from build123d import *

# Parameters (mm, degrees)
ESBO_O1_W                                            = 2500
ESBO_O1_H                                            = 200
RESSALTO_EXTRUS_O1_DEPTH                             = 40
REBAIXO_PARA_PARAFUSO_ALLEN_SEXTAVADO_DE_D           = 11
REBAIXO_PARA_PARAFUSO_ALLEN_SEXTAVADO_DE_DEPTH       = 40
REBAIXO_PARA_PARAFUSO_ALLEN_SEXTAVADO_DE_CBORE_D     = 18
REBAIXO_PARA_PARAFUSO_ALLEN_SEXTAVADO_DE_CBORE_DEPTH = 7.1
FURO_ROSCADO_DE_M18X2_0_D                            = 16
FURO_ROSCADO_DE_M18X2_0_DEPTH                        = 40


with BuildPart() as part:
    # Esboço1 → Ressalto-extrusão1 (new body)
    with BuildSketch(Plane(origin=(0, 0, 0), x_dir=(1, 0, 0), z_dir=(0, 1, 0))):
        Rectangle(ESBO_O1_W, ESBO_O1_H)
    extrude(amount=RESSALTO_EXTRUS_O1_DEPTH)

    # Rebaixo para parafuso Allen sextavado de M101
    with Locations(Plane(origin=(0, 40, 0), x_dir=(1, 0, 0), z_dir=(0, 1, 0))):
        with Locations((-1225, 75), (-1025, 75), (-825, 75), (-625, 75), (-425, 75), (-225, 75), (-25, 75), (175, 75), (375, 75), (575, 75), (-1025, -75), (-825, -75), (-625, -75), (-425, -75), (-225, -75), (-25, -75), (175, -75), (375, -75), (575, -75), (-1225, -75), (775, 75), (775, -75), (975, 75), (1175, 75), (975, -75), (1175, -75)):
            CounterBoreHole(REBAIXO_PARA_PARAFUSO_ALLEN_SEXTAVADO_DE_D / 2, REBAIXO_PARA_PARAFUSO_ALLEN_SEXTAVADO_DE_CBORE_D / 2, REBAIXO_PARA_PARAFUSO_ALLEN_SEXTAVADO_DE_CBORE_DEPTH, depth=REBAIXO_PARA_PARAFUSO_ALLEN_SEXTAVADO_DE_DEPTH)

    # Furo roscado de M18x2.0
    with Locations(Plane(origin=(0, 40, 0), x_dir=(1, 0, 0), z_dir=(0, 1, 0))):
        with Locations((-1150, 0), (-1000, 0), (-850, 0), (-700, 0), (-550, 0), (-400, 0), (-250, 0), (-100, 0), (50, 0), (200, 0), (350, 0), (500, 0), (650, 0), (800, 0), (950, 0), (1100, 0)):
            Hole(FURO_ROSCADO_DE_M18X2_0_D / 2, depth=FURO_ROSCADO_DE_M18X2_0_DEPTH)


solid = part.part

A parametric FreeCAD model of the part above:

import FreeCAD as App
import Part
import Sketcher
from FreeCAD import Vector
Q = App.Units.Quantity


def add_polygon(sketch, points):
    """Adds a closed chain of lines whose ends are joined by coincident constraints."""
    first, n = sketch.GeometryCount, len(points)
    for a, b in zip(points, points[1:] + points[:1]):
        sketch.addGeometry(Part.LineSegment(App.Vector(*a, 0), App.Vector(*b, 0)), False)
    for i in range(n):
        sketch.addConstraint(Sketcher.Constraint("Coincident", first + i, 2, first + (i + 1) % n, 1))

doc = App.newDocument("Part")
body = doc.addObject("PartDesign::Body", "Body")

# Sketch on XZ plane
sketch1 = body.newObject("Sketcher::SketchObject", "Sketch")
sketch1.AttachmentSupport = (doc.getObject("XZ_Plane"), [""])
sketch1.MapMode = "FlatFace"
add_polygon(sketch1, [(-1250, -100), (-1250, 100), (1250, 100), (1250, -100)])  # lines 0-3
sketch1.addConstraint(Sketcher.Constraint("Vertical", 0))
sketch1.addConstraint(Sketcher.Constraint("Horizontal", 1))
sketch1.addConstraint(Sketcher.Constraint("Vertical", 2))
sketch1.addConstraint(Sketcher.Constraint("Horizontal", 3))
sketch1.addConstraint(Sketcher.Constraint("Symmetric", 0, 2, 2, 2, -1, 1))
sketch1.addConstraint(Sketcher.Constraint("DistanceX", 1, 1, 1, 2, Q("2500 mm")))
sketch1.addConstraint(Sketcher.Constraint("DistanceY", 0, 1, 0, 2, Q("200 mm")))
pad1 = body.newObject("PartDesign::Pad", "Pad")
pad1.Profile = sketch1
pad1.Length = 40
pad1.Reversed = True

# Sketch on XZ plane
sketch2 = body.newObject("Sketcher::SketchObject", "Sketch001")
sketch2.AttachmentSupport = (doc.getObject("XZ_Plane"), [""])
sketch2.MapMode = "FlatFace"
sketch2.AttachmentOffset = App.Placement(Vector(0, 0, -40), App.Rotation())
sketch2.addGeometry(Part.Circle(Vector(-1225, -75, 0), Vector(0, 0, 1), 5.5), False)
sketch2.addGeometry(Part.Circle(Vector(-1025, -75, 0), Vector(0, 0, 1), 5.5), False)
sketch2.addGeometry(Part.Circle(Vector(-825, -75, 0), Vector(0, 0, 1), 5.5), False)
sketch2.addGeometry(Part.Circle(Vector(-625, -75, 0), Vector(0, 0, 1), 5.5), False)
sketch2.addGeometry(Part.Circle(Vector(-425, -75, 0), Vector(0, 0, 1), 5.5), False)
sketch2.addGeometry(Part.Circle(Vector(-225, -75, 0), Vector(0, 0, 1), 5.5), False)
sketch2.addGeometry(Part.Circle(Vector(-25, -75, 0), Vector(0, 0, 1), 5.5), False)
sketch2.addGeometry(Part.Circle(Vector(175, -75, 0), Vector(0, 0, 1), 5.5), False)
sketch2.addGeometry(Part.Circle(Vector(375, -75, 0), Vector(0, 0, 1), 5.5), False)
sketch2.addGeometry(Part.Circle(Vector(575, -75, 0), Vector(0, 0, 1), 5.5), False)
sketch2.addGeometry(Part.Circle(Vector(-1025, 75, 0), Vector(0, 0, 1), 5.5), False)
sketch2.addGeometry(Part.Circle(Vector(-825, 75, 0), Vector(0, 0, 1), 5.5), False)
sketch2.addGeometry(Part.Circle(Vector(-625, 75, 0), Vector(0, 0, 1), 5.5), False)
sketch2.addGeometry(Part.Circle(Vector(-425, 75, 0), Vector(0, 0, 1), 5.5), False)
sketch2.addGeometry(Part.Circle(Vector(-225, 75, 0), Vector(0, 0, 1), 5.5), False)
sketch2.addGeometry(Part.Circle(Vector(-25, 75, 0), Vector(0, 0, 1), 5.5), False)
sketch2.addGeometry(Part.Circle(Vector(175, 75, 0), Vector(0, 0, 1), 5.5), False)
sketch2.addGeometry(Part.Circle(Vector(375, 75, 0), Vector(0, 0, 1), 5.5), False)
sketch2.addGeometry(Part.Circle(Vector(575, 75, 0), Vector(0, 0, 1), 5.5), False)
sketch2.addGeometry(Part.Circle(Vector(-1225, 75, 0), Vector(0, 0, 1), 5.5), False)
sketch2.addGeometry(Part.Circle(Vector(775, -75, 0), Vector(0, 0, 1), 5.5), False)
sketch2.addGeometry(Part.Circle(Vector(775, 75, 0), Vector(0, 0, 1), 5.5), False)
sketch2.addGeometry(Part.Circle(Vector(975, -75, 0), Vector(0, 0, 1), 5.5), False)
sketch2.addGeometry(Part.Circle(Vector(1175, -75, 0), Vector(0, 0, 1), 5.5), False)
sketch2.addGeometry(Part.Circle(Vector(975, 75, 0), Vector(0, 0, 1), 5.5), False)
sketch2.addGeometry(Part.Circle(Vector(1175, 75, 0), Vector(0, 0, 1), 5.5), False)
sketch2.addConstraint(Sketcher.Constraint("Equal", 0, 1))
sketch2.addConstraint(Sketcher.Constraint("Equal", 1, 2))
sketch2.addConstraint(Sketcher.Constraint("Equal", 2, 3))
sketch2.addConstraint(Sketcher.Constraint("Equal", 3, 4))
sketch2.addConstraint(Sketcher.Constraint("Equal", 4, 5))
sketch2.addConstraint(Sketcher.Constraint("Equal", 5, 6))
sketch2.addConstraint(Sketcher.Constraint("Equal", 6, 7))
sketch2.addConstraint(Sketcher.Constraint("Equal", 7, 8))
sketch2.addConstraint(Sketcher.Constraint("Equal", 8, 9))
sketch2.addConstraint(Sketcher.Constraint("Equal", 9, 10))
sketch2.addConstraint(Sketcher.Constraint("Equal", 10, 11))
sketch2.addConstraint(Sketcher.Constraint("Equal", 11, 12))
sketch2.addConstraint(Sketcher.Constraint("Equal", 12, 13))
sketch2.addConstraint(Sketcher.Constraint("Equal", 13, 14))
sketch2.addConstraint(Sketcher.Constraint("Equal", 14, 15))
sketch2.addConstraint(Sketcher.Constraint("Equal", 15, 16))
sketch2.addConstraint(Sketcher.Constraint("Equal", 16, 17))
sketch2.addConstraint(Sketcher.Constraint("Equal", 17, 18))
sketch2.addConstraint(Sketcher.Constraint("Equal", 18, 19))
sketch2.addConstraint(Sketcher.Constraint("Equal", 19, 20))
sketch2.addConstraint(Sketcher.Constraint("Equal", 20, 21))
sketch2.addConstraint(Sketcher.Constraint("Equal", 21, 22))
sketch2.addConstraint(Sketcher.Constraint("Equal", 22, 23))
sketch2.addConstraint(Sketcher.Constraint("Equal", 23, 24))
sketch2.addConstraint(Sketcher.Constraint("Equal", 24, 25))
sketch2.addConstraint(Sketcher.Constraint("Symmetric", 1, 3, 10, 3, -1))
sketch2.addConstraint(Sketcher.Constraint("Symmetric", 2, 3, 11, 3, -1))
sketch2.addConstraint(Sketcher.Constraint("Symmetric", 3, 3, 12, 3, -1))
sketch2.addConstraint(Sketcher.Constraint("Symmetric", 4, 3, 13, 3, -1))
sketch2.addConstraint(Sketcher.Constraint("Symmetric", 5, 3, 14, 3, -1))
sketch2.addConstraint(Sketcher.Constraint("Symmetric", 6, 3, 15, 3, -1))
sketch2.addConstraint(Sketcher.Constraint("Symmetric", 7, 3, 16, 3, -1))
sketch2.addConstraint(Sketcher.Constraint("Symmetric", 8, 3, 17, 3, -1))
sketch2.addConstraint(Sketcher.Constraint("Symmetric", 9, 3, 18, 3, -1))
sketch2.addConstraint(Sketcher.Constraint("Symmetric", 0, 3, 19, 3, -1))
sketch2.addConstraint(Sketcher.Constraint("Symmetric", 20, 3, 21, 3, -1))
sketch2.addConstraint(Sketcher.Constraint("Symmetric", 22, 3, 24, 3, -1))
sketch2.addConstraint(Sketcher.Constraint("Symmetric", 23, 3, 25, 3, -1))
sketch2.addConstraint(Sketcher.Constraint("Horizontal", 0, 3, 1, 3))
sketch2.addConstraint(Sketcher.Constraint("Horizontal", 1, 3, 2, 3))
sketch2.addConstraint(Sketcher.Constraint("Horizontal", 2, 3, 3, 3))
sketch2.addConstraint(Sketcher.Constraint("Horizontal", 3, 3, 4, 3))
sketch2.addConstraint(Sketcher.Constraint("Horizontal", 4, 3, 5, 3))
sketch2.addConstraint(Sketcher.Constraint("Horizontal", 5, 3, 6, 3))
sketch2.addConstraint(Sketcher.Constraint("Horizontal", 6, 3, 7, 3))
sketch2.addConstraint(Sketcher.Constraint("Horizontal", 7, 3, 8, 3))
sketch2.addConstraint(Sketcher.Constraint("Horizontal", 8, 3, 9, 3))
sketch2.addConstraint(Sketcher.Constraint("Horizontal", 9, 3, 20, 3))
sketch2.addConstraint(Sketcher.Constraint("Horizontal", 20, 3, 22, 3))
sketch2.addConstraint(Sketcher.Constraint("Horizontal", 22, 3, 23, 3))
sketch2.addConstraint(Sketcher.Constraint("Diameter", 0, Q("11 mm")))
sketch2.addConstraint(Sketcher.Constraint("DistanceX", 0, 3, -1, 1, Q("1225 mm")))
sketch2.addConstraint(Sketcher.Constraint("DistanceY", 0, 3, -1, 1, Q("75 mm")))
sketch2.addConstraint(Sketcher.Constraint("DistanceX", 1, 3, -1, 1, Q("1025 mm")))
sketch2.addConstraint(Sketcher.Constraint("DistanceX", 2, 3, -1, 1, Q("825 mm")))
sketch2.addConstraint(Sketcher.Constraint("DistanceX", 3, 3, -1, 1, Q("625 mm")))
sketch2.addConstraint(Sketcher.Constraint("DistanceX", 4, 3, -1, 1, Q("425 mm")))
sketch2.addConstraint(Sketcher.Constraint("DistanceX", 5, 3, -1, 1, Q("225 mm")))
sketch2.addConstraint(Sketcher.Constraint("DistanceX", 6, 3, -1, 1, Q("25 mm")))
sketch2.addConstraint(Sketcher.Constraint("DistanceX", -1, 1, 7, 3, Q("175 mm")))
sketch2.addConstraint(Sketcher.Constraint("DistanceX", -1, 1, 8, 3, Q("375 mm")))
sketch2.addConstraint(Sketcher.Constraint("DistanceX", -1, 1, 9, 3, Q("575 mm")))
sketch2.addConstraint(Sketcher.Constraint("DistanceX", -1, 1, 20, 3, Q("775 mm")))
sketch2.addConstraint(Sketcher.Constraint("DistanceX", -1, 1, 22, 3, Q("975 mm")))
sketch2.addConstraint(Sketcher.Constraint("DistanceX", -1, 1, 23, 3, Q("1175 mm")))
doc.recompute()
hole = body.newObject("PartDesign::Hole", "Hole")
hole.Profile = sketch2
hole.ThreadType = "None"
hole.Diameter = 11
hole.DepthType = "Dimension"
hole.Depth = 40
hole.DrillPoint = "Flat"
hole.HoleCutType = "Counterbore"
hole.HoleCutDiameter = 18
hole.HoleCutDepth = 7.1
hole.Reversed = True

# Sketch on XZ plane
sketch3 = body.newObject("Sketcher::SketchObject", "Sketch002")
sketch3.AttachmentSupport = (doc.getObject("XZ_Plane"), [""])
sketch3.MapMode = "FlatFace"
sketch3.AttachmentOffset = App.Placement(Vector(0, 0, -40), App.Rotation())
sketch3.addGeometry(Part.Circle(Vector(-1150, 0, 0), Vector(0, 0, 1), 8), False)
sketch3.addGeometry(Part.Circle(Vector(-1000, 0, 0), Vector(0, 0, 1), 8), False)
sketch3.addGeometry(Part.Circle(Vector(-850, 0, 0), Vector(0, 0, 1), 8), False)
sketch3.addGeometry(Part.Circle(Vector(-700, 0, 0), Vector(0, 0, 1), 8), False)
sketch3.addGeometry(Part.Circle(Vector(-550, 0, 0), Vector(0, 0, 1), 8), False)
sketch3.addGeometry(Part.Circle(Vector(-400, 0, 0), Vector(0, 0, 1), 8), False)
sketch3.addGeometry(Part.Circle(Vector(-250, 0, 0), Vector(0, 0, 1), 8), False)
sketch3.addGeometry(Part.Circle(Vector(-100, 0, 0), Vector(0, 0, 1), 8), False)
sketch3.addGeometry(Part.Circle(Vector(50, 0, 0), Vector(0, 0, 1), 8), False)
sketch3.addGeometry(Part.Circle(Vector(200, 0, 0), Vector(0, 0, 1), 8), False)
sketch3.addGeometry(Part.Circle(Vector(350, 0, 0), Vector(0, 0, 1), 8), False)
sketch3.addGeometry(Part.Circle(Vector(500, 0, 0), Vector(0, 0, 1), 8), False)
sketch3.addGeometry(Part.Circle(Vector(650, 0, 0), Vector(0, 0, 1), 8), False)
sketch3.addGeometry(Part.Circle(Vector(800, 0, 0), Vector(0, 0, 1), 8), False)
sketch3.addGeometry(Part.Circle(Vector(950, 0, 0), Vector(0, 0, 1), 8), False)
sketch3.addGeometry(Part.Circle(Vector(1100, 0, 0), Vector(0, 0, 1), 8), False)
sketch3.addConstraint(Sketcher.Constraint("Equal", 0, 1))
sketch3.addConstraint(Sketcher.Constraint("Equal", 1, 2))
sketch3.addConstraint(Sketcher.Constraint("Equal", 2, 3))
sketch3.addConstraint(Sketcher.Constraint("Equal", 3, 4))
sketch3.addConstraint(Sketcher.Constraint("Equal", 4, 5))
sketch3.addConstraint(Sketcher.Constraint("Equal", 5, 6))
sketch3.addConstraint(Sketcher.Constraint("Equal", 6, 7))
sketch3.addConstraint(Sketcher.Constraint("Equal", 7, 8))
sketch3.addConstraint(Sketcher.Constraint("Equal", 8, 9))
sketch3.addConstraint(Sketcher.Constraint("Equal", 9, 10))
sketch3.addConstraint(Sketcher.Constraint("Equal", 10, 11))
sketch3.addConstraint(Sketcher.Constraint("Equal", 11, 12))
sketch3.addConstraint(Sketcher.Constraint("Equal", 12, 13))
sketch3.addConstraint(Sketcher.Constraint("Equal", 13, 14))
sketch3.addConstraint(Sketcher.Constraint("Equal", 14, 15))
sketch3.addConstraint(Sketcher.Constraint("PointOnObject", 0, 3, -1))
sketch3.addConstraint(Sketcher.Constraint("PointOnObject", 1, 3, -1))
sketch3.addConstraint(Sketcher.Constraint("PointOnObject", 2, 3, -1))
sketch3.addConstraint(Sketcher.Constraint("PointOnObject", 3, 3, -1))
sketch3.addConstraint(Sketcher.Constraint("PointOnObject", 4, 3, -1))
sketch3.addConstraint(Sketcher.Constraint("PointOnObject", 5, 3, -1))
sketch3.addConstraint(Sketcher.Constraint("PointOnObject", 6, 3, -1))
sketch3.addConstraint(Sketcher.Constraint("PointOnObject", 7, 3, -1))
sketch3.addConstraint(Sketcher.Constraint("PointOnObject", 8, 3, -1))
sketch3.addConstraint(Sketcher.Constraint("PointOnObject", 9, 3, -1))
sketch3.addConstraint(Sketcher.Constraint("PointOnObject", 10, 3, -1))
sketch3.addConstraint(Sketcher.Constraint("PointOnObject", 11, 3, -1))
sketch3.addConstraint(Sketcher.Constraint("PointOnObject", 12, 3, -1))
sketch3.addConstraint(Sketcher.Constraint("PointOnObject", 13, 3, -1))
sketch3.addConstraint(Sketcher.Constraint("PointOnObject", 14, 3, -1))
sketch3.addConstraint(Sketcher.Constraint("PointOnObject", 15, 3, -1))
sketch3.addConstraint(Sketcher.Constraint("Diameter", 0, Q("16 mm")))
sketch3.addConstraint(Sketcher.Constraint("DistanceX", 0, 3, -1, 1, Q("1150 mm")))
sketch3.addConstraint(Sketcher.Constraint("DistanceX", 1, 3, -1, 1, Q("1000 mm")))
sketch3.addConstraint(Sketcher.Constraint("DistanceX", 2, 3, -1, 1, Q("850 mm")))
sketch3.addConstraint(Sketcher.Constraint("DistanceX", 3, 3, -1, 1, Q("700 mm")))
sketch3.addConstraint(Sketcher.Constraint("DistanceX", 4, 3, -1, 1, Q("550 mm")))
sketch3.addConstraint(Sketcher.Constraint("DistanceX", 5, 3, -1, 1, Q("400 mm")))
sketch3.addConstraint(Sketcher.Constraint("DistanceX", 6, 3, -1, 1, Q("250 mm")))
sketch3.addConstraint(Sketcher.Constraint("DistanceX", 7, 3, -1, 1, Q("100 mm")))
sketch3.addConstraint(Sketcher.Constraint("DistanceX", -1, 1, 8, 3, Q("50 mm")))
sketch3.addConstraint(Sketcher.Constraint("DistanceX", -1, 1, 9, 3, Q("200 mm")))
sketch3.addConstraint(Sketcher.Constraint("DistanceX", -1, 1, 10, 3, Q("350 mm")))
sketch3.addConstraint(Sketcher.Constraint("DistanceX", -1, 1, 11, 3, Q("500 mm")))
sketch3.addConstraint(Sketcher.Constraint("DistanceX", -1, 1, 12, 3, Q("650 mm")))
sketch3.addConstraint(Sketcher.Constraint("DistanceX", -1, 1, 13, 3, Q("800 mm")))
sketch3.addConstraint(Sketcher.Constraint("DistanceX", -1, 1, 14, 3, Q("950 mm")))
sketch3.addConstraint(Sketcher.Constraint("DistanceX", -1, 1, 15, 3, Q("1100 mm")))
doc.recompute()
hole2 = body.newObject("PartDesign::Hole", "Hole001")
hole2.Profile = sketch3
hole2.ThreadType = "None"
hole2.Diameter = 16
hole2.DepthType = "Dimension"
hole2.Depth = 40
hole2.DrillPoint = "Flat"
hole2.Reversed = True

doc.recompute()
